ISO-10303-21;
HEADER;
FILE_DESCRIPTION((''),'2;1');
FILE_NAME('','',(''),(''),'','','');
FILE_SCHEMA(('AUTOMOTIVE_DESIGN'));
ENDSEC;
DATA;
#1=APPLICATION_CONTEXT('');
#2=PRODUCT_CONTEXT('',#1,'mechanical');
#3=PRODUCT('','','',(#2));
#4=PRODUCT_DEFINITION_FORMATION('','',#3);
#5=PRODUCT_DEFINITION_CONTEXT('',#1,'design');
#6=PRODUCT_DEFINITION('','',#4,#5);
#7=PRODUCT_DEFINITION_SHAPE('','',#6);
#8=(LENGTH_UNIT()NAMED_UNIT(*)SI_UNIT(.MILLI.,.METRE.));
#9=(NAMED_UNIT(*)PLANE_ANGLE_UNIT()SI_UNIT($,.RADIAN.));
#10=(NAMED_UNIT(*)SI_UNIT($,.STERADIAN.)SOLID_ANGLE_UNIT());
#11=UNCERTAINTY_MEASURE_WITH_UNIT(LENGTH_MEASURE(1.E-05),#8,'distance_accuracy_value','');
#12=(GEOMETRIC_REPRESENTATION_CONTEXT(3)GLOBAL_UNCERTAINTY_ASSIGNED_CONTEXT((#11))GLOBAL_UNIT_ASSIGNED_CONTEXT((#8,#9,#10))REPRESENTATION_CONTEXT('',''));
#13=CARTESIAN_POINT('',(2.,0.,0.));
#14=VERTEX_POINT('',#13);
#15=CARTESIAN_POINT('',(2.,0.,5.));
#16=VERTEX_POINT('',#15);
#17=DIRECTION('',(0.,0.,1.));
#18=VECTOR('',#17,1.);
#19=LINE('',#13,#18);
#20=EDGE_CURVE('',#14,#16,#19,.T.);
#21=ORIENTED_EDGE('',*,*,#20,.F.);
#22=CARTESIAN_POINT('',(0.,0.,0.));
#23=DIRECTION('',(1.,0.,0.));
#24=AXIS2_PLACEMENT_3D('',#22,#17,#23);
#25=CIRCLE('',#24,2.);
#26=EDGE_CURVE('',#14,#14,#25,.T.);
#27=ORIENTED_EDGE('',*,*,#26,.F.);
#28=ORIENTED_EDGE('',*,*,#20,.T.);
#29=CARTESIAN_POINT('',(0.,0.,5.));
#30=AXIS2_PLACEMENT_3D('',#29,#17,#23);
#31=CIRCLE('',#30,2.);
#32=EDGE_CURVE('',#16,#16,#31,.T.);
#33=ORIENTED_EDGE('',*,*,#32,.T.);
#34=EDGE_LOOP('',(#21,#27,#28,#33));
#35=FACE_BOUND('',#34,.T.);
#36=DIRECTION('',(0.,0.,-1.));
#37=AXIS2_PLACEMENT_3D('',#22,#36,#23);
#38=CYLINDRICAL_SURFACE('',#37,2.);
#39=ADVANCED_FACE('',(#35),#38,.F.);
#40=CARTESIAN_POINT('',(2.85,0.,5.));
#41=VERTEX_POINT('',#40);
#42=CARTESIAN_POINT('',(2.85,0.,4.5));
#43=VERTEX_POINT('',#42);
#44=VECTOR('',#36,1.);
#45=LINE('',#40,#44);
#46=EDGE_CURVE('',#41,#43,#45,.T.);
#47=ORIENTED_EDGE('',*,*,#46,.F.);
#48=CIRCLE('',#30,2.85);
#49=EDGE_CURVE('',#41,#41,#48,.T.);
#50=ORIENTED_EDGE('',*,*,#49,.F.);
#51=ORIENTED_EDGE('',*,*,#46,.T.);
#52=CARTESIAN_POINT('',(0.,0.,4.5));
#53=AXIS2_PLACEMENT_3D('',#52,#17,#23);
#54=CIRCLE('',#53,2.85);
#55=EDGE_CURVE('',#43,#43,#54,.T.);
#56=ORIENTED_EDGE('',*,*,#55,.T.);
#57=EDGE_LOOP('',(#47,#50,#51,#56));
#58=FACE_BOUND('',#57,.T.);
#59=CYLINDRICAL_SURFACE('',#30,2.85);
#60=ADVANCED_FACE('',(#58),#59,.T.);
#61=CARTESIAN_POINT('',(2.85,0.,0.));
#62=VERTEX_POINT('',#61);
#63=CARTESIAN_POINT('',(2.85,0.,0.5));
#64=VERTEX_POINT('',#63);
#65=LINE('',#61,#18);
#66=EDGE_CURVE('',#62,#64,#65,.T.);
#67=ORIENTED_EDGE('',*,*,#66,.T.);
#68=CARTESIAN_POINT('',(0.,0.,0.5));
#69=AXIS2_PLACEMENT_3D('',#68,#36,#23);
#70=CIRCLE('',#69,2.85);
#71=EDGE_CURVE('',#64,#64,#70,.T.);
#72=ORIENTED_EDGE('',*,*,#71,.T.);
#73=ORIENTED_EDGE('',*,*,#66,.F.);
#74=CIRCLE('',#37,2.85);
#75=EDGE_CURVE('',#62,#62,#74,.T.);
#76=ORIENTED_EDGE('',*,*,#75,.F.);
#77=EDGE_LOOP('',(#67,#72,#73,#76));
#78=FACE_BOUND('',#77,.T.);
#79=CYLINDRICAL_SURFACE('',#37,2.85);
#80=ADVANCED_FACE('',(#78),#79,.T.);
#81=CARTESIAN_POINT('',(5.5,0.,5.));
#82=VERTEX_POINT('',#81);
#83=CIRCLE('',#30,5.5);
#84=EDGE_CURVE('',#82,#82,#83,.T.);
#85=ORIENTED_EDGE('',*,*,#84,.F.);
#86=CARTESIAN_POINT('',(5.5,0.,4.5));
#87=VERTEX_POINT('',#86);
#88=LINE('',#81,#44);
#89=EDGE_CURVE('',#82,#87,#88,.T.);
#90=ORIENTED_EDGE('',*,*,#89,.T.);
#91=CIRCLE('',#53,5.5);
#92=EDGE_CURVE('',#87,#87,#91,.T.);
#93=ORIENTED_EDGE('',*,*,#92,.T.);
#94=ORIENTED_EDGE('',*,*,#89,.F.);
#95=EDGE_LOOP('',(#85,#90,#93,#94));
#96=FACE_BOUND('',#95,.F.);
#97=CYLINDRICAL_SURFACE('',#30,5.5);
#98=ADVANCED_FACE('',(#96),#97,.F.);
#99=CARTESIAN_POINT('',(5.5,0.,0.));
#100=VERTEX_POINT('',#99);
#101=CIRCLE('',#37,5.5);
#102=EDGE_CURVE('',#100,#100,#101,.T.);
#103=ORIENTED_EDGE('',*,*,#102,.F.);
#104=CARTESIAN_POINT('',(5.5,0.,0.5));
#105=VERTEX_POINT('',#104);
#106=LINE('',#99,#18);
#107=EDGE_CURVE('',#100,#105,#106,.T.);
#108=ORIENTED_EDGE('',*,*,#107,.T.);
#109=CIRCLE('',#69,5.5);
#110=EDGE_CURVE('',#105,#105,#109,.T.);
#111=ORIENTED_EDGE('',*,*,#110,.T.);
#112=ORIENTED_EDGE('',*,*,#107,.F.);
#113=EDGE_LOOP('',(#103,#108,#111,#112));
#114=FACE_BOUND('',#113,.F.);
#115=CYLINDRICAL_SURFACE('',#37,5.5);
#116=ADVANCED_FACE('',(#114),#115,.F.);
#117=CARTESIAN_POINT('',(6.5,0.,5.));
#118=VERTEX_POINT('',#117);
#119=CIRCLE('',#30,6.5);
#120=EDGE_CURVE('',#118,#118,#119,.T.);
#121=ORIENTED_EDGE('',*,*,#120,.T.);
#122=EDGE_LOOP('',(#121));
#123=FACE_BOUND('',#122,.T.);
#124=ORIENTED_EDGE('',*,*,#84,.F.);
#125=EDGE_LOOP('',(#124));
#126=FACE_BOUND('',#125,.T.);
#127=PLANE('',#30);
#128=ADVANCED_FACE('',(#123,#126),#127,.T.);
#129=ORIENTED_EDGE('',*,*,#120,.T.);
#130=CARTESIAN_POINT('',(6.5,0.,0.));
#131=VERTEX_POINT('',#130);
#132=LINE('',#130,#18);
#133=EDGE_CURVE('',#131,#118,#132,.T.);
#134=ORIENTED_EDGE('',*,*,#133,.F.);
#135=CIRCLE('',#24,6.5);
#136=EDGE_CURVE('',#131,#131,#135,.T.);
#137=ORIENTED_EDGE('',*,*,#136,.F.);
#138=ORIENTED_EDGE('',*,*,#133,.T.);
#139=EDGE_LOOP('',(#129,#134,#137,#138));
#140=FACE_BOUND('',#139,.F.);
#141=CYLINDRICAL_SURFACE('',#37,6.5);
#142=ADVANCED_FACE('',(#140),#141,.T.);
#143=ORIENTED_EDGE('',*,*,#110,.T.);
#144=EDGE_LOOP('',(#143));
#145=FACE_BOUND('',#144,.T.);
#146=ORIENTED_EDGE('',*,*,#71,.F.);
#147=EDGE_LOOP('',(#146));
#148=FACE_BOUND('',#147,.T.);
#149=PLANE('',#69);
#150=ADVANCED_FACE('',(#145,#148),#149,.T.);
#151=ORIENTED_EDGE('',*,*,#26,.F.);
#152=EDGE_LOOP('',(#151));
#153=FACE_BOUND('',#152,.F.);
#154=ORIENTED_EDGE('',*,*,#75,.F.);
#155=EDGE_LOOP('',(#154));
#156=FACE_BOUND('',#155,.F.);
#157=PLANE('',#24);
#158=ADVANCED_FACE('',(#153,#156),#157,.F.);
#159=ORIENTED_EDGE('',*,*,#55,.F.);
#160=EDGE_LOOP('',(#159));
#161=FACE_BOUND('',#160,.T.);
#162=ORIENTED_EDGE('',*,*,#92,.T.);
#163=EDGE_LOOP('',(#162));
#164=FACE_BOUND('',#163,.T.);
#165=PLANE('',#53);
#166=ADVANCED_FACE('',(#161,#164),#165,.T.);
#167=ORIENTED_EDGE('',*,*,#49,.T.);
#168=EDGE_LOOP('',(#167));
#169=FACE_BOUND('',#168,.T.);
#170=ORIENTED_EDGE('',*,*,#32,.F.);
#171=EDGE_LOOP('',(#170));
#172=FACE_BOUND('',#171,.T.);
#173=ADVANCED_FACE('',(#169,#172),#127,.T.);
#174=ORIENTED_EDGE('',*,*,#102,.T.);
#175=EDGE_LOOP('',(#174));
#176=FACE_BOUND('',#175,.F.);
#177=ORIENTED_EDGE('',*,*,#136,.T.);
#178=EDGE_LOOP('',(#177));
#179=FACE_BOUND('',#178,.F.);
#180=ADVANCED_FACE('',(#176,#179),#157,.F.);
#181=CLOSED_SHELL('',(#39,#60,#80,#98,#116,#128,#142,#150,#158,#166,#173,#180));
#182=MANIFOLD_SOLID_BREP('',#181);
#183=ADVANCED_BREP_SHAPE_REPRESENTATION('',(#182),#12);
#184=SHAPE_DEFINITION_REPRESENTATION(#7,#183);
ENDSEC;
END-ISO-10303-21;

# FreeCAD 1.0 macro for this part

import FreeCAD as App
import Part
import Sketcher
Q = App.Units.Quantity

doc = App.newDocument("Part")
body = doc.addObject("PartDesign::Body", "Body")

# Sketch on XY plane
sketch1 = body.newObject("Sketcher::SketchObject", "Sketch")
sketch1.AttachmentSupport = (doc.getObject("XY_Plane"), [""])
sketch1.MapMode = "FlatFace"
sketch1.addGeometry([
    Part.Circle(App.Vector(0, 0, 0), App.Vector(0, 0, 1), 6.5),
    Part.Circle(App.Vector(0, 0, 0), App.Vector(0, 0, 1), 2),
], False)
sketch1.addConstraint([
    Sketcher.Constraint("Coincident", 0, 3, -1, 1),
    Sketcher.Constraint("Coincident", 1, 3, -1, 1),
    Sketcher.Constraint("Diameter", 0, Q("13 mm")),
    Sketcher.Constraint("Diameter", 1, Q("4 mm")),
])
pad1 = body.newObject("PartDesign::Pad", "Pad")
pad1.Profile = sketch1
pad1.Length = 5

# Sketch on XY plane
sketch2 = body.newObject("Sketcher::SketchObject", "Sketch001")
sketch2.AttachmentSupport = (doc.getObject("XY_Plane"), [""])
sketch2.MapMode = "FlatFace"
sketch2.AttachmentOffset = App.Placement(App.Vector(0, 0, 5), App.Rotation())
sketch2.addGeometry([
    Part.Circle(App.Vector(0, 0, 0), App.Vector(0, 0, 1), 5.5),
    Part.Circle(App.Vector(0, 0, 0), App.Vector(0, 0, 1), 2.9),
], False)
sketch2.addConstraint([
    Sketcher.Constraint("Coincident", 0, 3, -1, 1),
    Sketcher.Constraint("Coincident", 1, 3, -1, 1),
    Sketcher.Constraint("Diameter", 0, Q("11 mm")),
    Sketcher.Constraint("Diameter", 1, Q("5.7 mm")),
])
pocket1 = body.newObject("PartDesign::Pocket", "Pocket")
pocket1.Profile = sketch2
pocket1.Length = 0.5

# Sketch on XY plane
sketch3 = body.newObject("Sketcher::SketchObject", "Sketch002")
sketch3.AttachmentSupport = (doc.getObject("XY_Plane"), [""])
sketch3.MapMode = "FlatFace"
sketch3.addGeometry([
    Part.Circle(App.Vector(0, 0, 0), App.Vector(0, 0, 1), 5.5),
    Part.Circle(App.Vector(0, 0, 0), App.Vector(0, 0, 1), 2.9),
], False)
sketch3.addConstraint([
    Sketcher.Constraint("Coincident", 0, 3, -1, 1),
    Sketcher.Constraint("Coincident", 1, 3, -1, 1),
    Sketcher.Constraint("Diameter", 0, Q("11 mm")),
    Sketcher.Constraint("Diameter", 1, Q("5.7 mm")),
])
pocket2 = body.newObject("PartDesign::Pocket", "Pocket001")
pocket2.Profile = sketch3
pocket2.Length = 0.5
pocket2.Reversed = True

doc.recompute()
